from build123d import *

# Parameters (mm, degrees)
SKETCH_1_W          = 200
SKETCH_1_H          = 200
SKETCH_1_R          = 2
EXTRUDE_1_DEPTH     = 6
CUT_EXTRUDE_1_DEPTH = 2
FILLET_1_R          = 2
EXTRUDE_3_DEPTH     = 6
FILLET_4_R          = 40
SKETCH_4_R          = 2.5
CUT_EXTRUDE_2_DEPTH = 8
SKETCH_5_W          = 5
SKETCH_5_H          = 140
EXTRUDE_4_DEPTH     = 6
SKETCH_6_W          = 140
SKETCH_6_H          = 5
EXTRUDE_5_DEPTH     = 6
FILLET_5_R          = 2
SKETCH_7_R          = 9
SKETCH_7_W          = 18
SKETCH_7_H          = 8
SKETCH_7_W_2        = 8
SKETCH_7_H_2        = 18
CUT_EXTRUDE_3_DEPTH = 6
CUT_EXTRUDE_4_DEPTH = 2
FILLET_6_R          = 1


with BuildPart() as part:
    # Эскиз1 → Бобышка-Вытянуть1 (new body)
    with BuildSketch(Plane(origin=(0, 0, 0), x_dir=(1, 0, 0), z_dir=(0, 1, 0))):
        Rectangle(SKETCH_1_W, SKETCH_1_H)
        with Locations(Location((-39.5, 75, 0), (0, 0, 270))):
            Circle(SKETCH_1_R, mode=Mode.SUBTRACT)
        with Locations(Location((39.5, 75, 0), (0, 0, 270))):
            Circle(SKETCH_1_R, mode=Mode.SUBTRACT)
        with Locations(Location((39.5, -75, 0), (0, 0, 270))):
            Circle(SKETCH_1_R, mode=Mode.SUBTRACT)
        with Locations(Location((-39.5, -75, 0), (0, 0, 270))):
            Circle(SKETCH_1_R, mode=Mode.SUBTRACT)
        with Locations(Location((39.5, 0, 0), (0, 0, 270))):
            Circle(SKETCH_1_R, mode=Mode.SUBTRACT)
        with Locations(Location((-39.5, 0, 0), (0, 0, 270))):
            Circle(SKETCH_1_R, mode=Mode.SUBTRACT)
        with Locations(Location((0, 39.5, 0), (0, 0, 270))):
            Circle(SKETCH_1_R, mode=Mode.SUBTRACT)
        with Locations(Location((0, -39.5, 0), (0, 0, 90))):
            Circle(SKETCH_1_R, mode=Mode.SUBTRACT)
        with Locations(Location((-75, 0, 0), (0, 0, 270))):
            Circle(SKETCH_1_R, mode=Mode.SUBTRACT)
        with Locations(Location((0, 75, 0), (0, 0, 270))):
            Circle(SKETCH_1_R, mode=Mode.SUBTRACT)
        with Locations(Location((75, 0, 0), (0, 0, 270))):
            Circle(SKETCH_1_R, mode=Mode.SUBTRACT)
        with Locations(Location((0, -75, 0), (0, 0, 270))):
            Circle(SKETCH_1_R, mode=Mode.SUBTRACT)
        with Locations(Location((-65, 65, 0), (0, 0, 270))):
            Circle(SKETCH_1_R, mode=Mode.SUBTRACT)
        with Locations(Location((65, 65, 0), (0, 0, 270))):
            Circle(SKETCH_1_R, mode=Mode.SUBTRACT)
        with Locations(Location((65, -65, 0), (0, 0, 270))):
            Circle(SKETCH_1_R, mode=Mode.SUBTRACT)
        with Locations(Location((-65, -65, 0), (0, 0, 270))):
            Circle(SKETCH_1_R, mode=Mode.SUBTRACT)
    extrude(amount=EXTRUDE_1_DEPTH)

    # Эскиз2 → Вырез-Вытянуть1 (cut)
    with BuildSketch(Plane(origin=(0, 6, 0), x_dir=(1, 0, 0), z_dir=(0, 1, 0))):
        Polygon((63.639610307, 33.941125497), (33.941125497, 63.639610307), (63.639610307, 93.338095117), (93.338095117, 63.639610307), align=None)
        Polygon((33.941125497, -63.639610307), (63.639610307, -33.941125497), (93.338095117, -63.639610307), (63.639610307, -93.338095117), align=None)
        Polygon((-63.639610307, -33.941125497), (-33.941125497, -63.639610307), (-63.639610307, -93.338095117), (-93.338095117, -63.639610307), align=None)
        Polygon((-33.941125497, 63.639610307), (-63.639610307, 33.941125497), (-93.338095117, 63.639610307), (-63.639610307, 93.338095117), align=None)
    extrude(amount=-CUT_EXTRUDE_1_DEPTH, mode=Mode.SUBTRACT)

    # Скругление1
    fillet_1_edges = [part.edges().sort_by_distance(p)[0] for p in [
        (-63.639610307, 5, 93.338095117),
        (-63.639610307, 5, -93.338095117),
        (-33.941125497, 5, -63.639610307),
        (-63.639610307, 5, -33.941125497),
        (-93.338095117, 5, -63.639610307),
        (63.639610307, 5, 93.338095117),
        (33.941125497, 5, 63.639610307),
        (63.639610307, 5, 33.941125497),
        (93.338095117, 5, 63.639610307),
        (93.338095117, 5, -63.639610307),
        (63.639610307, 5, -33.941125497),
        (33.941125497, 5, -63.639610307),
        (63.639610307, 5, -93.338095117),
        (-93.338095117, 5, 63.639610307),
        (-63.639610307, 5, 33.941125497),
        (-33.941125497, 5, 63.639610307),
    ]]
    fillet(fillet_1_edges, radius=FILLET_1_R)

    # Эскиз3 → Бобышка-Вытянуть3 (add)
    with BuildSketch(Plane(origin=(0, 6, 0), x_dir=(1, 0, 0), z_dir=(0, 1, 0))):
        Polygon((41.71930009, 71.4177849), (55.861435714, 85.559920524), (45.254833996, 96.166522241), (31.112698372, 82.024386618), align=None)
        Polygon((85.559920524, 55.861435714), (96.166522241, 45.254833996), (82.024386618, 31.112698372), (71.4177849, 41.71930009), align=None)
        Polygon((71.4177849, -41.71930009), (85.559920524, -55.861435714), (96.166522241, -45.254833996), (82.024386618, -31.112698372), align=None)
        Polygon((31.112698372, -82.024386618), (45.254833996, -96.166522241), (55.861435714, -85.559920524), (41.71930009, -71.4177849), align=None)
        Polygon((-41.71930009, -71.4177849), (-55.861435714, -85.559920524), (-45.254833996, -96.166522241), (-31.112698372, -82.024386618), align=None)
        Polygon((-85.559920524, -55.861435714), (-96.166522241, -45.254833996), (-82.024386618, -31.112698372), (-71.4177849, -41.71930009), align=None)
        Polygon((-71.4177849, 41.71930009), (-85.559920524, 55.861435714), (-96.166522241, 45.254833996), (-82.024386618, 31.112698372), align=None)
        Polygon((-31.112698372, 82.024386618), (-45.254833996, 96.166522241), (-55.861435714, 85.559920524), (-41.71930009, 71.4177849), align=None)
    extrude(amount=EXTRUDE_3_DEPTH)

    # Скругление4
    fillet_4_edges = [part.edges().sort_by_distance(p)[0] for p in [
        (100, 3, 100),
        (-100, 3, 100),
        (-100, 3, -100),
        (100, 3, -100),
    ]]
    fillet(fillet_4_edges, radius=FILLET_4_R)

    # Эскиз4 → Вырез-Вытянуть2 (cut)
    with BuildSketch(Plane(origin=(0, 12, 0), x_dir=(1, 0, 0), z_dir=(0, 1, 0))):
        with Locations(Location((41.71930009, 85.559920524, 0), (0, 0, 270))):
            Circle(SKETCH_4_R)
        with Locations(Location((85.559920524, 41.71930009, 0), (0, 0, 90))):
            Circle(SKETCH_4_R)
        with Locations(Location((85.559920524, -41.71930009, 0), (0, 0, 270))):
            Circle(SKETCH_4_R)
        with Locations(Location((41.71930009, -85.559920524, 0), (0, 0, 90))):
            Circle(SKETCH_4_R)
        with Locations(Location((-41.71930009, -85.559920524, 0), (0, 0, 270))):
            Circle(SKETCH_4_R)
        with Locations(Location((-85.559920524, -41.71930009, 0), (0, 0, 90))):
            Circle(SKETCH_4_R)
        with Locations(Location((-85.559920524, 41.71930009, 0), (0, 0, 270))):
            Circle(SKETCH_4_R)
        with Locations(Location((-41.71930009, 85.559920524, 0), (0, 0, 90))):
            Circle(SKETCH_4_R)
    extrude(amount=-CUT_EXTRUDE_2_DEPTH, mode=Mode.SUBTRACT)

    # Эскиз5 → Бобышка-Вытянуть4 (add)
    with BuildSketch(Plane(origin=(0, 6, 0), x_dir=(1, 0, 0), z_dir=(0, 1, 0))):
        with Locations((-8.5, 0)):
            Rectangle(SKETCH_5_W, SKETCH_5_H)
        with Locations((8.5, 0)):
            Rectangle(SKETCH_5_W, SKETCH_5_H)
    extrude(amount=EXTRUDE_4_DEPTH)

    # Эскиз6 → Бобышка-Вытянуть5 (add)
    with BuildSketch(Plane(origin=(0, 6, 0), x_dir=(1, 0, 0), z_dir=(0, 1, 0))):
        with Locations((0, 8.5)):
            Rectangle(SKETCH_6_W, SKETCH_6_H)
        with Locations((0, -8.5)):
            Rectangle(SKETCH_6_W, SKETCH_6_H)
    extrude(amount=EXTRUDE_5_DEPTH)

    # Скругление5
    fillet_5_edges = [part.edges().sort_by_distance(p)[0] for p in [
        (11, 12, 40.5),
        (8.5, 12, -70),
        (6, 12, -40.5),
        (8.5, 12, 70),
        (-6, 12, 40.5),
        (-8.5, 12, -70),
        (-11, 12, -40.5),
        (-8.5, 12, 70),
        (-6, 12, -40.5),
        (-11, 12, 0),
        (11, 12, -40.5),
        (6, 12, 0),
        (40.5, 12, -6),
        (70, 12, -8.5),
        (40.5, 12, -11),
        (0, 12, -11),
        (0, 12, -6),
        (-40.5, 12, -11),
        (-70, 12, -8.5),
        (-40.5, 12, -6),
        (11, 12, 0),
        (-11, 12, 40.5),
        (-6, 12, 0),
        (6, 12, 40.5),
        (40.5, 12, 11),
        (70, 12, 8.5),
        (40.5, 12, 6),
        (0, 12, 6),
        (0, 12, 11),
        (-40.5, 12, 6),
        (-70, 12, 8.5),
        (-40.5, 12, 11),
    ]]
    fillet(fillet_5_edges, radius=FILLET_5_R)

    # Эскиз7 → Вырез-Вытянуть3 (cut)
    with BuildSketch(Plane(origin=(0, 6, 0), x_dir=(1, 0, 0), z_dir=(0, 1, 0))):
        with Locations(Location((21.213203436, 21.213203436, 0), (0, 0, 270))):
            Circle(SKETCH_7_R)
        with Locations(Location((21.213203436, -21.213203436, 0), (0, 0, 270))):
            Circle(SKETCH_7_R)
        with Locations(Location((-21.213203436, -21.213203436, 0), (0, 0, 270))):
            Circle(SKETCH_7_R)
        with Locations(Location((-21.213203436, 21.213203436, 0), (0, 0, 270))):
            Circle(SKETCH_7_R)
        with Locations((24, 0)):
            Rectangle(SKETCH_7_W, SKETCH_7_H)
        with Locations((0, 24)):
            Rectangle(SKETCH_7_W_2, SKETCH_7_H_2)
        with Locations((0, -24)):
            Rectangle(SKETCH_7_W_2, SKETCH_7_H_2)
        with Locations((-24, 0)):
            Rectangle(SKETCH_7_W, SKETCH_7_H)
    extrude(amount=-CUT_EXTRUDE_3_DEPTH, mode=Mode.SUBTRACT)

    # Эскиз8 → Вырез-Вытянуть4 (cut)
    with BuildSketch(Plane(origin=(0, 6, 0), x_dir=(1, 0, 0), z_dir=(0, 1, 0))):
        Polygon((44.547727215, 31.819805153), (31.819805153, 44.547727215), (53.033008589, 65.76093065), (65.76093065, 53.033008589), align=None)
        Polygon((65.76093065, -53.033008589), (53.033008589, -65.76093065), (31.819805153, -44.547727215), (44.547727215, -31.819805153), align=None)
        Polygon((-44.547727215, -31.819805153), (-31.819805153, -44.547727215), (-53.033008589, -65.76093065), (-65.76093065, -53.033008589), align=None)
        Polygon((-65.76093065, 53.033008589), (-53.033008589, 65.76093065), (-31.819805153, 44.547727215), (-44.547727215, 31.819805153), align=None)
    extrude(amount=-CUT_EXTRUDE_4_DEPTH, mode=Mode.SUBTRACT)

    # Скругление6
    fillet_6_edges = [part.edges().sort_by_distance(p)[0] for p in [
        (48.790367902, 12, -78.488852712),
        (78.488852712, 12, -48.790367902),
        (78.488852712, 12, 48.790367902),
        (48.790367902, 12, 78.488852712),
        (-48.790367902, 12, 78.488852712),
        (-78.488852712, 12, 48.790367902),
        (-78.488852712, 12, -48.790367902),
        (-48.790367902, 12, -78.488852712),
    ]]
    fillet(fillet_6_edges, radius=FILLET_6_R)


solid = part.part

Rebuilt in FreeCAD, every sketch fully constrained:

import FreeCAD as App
import Part
import Sketcher

V = App.Vector


def edges_at(feature, points):
    """Names of the edges that pass closest to the given points."""
    edges = feature.Shape.Edges
    near = lambda p: min(range(len(edges)), key=lambda i: edges[i].distToShape(Part.Vertex(*p))[0])
    return sorted({f"Edge{near(p) + 1}" for p in points})

doc = App.newDocument("Part")
body = doc.addObject("PartDesign::Body", "Body")

# Sketch on XZ plane
sketch1 = doc.addObject("Sketcher::SketchObject", "Sketch")
body.addObject(sketch1)
sketch1.AttachmentSupport = (doc.XZ_Plane, [""])
sketch1.MapMode = "FlatFace"
sketch1.addGeometry([
    Part.LineSegment(V(-100, -100, 0), V(-100, 100, 0)),  # 0
    Part.LineSegment(V(-100, 100, 0), V(100, 100, 0)),  # 1
    Part.LineSegment(V(100, 100, 0), V(100, -100, 0)),  # 2
    Part.LineSegment(V(100, -100, 0), V(-100, -100, 0)),  # 3
    Part.Circle(V(-65, 65, 0), V(0, 0, 1), 2),  # 4
    Part.Circle(V(-39.5, 75, 0), V(0, 0, 1), 2),  # 5
    Part.Circle(V(0, 75, 0), V(0, 0, 1), 2),  # 6
    Part.Circle(V(0, 39.5, 0), V(0, 0, 1), 2),  # 7
    Part.Circle(V(39.5, 75, 0), V(0, 0, 1), 2),  # 8
    Part.Circle(V(65, 65, 0), V(0, 0, 1), 2),  # 9
    Part.Circle(V(-75, 0, 0), V(0, 0, 1), 2),  # 10
    Part.Circle(V(-39.5, 0, 0), V(0, 0, 1), 2),  # 11
    Part.Circle(V(-65, -65, 0), V(0, 0, 1), 2),  # 12
    Part.Circle(V(-39.5, -75, 0), V(0, 0, 1), 2),  # 13
    Part.Circle(V(39.5, 0, 0), V(0, 0, 1), 2),  # 14
    Part.Circle(V(75, 0, 0), V(0, 0, 1), 2),  # 15
    Part.Circle(V(0, -39.5, 0), V(0, 0, 1), 2),  # 16
    Part.Circle(V(0, -75, 0), V(0, 0, 1), 2),  # 17
    Part.Circle(V(39.5, -75, 0), V(0, 0, 1), 2),  # 18
    Part.Circle(V(65, -65, 0), V(0, 0, 1), 2),  # 19
], False)
sketch1.addConstraint([
    Sketcher.Constraint("Coincident", 0, 2, 1, 1),
    Sketcher.Constraint("Coincident", 1, 2, 2, 1),
    Sketcher.Constraint("Coincident", 2, 2, 3, 1),
    Sketcher.Constraint("Coincident", 3, 2, 0, 1),
    Sketcher.Constraint("Vertical", 0),
    Sketcher.Constraint("Horizontal", 1),
    Sketcher.Constraint("Vertical", 2),
    Sketcher.Constraint("Horizontal", 3),
    Sketcher.Constraint("Equal", 4, 5),
    Sketcher.Constraint("Equal", 5, 6),
    Sketcher.Constraint("Equal", 6, 7),
    Sketcher.Constraint("Equal", 7, 8),
    Sketcher.Constraint("Equal", 8, 9),
    Sketcher.Constraint("Equal", 9, 10),
    Sketcher.Constraint("Equal", 10, 11),
    Sketcher.Constraint("Equal", 11, 12),
    Sketcher.Constraint("Equal", 12, 13),
    Sketcher.Constraint("Equal", 13, 14),
    Sketcher.Constraint("Equal", 14, 15),
    Sketcher.Constraint("Equal", 15, 16),
    Sketcher.Constraint("Equal", 16, 17),
    Sketcher.Constraint("Equal", 17, 18),
    Sketcher.Constraint("Equal", 18, 19),
    Sketcher.Constraint("Symmetric", 9, 3, 12, 3, -1, 1),
    Sketcher.Constraint("Symmetric", 8, 3, 13, 3, -1, 1),
    Sketcher.Constraint("Symmetric", 11, 3, 14, 3, -1, 1),
    Sketcher.Constraint("Symmetric", 10, 3, 15, 3, -1, 1),
    Sketcher.Constraint("Symmetric", 7, 3, 16, 3, -1, 1),
    Sketcher.Constraint("Symmetric", 6, 3, 17, 3, -1, 1),
    Sketcher.Constraint("Symmetric", 5, 3, 18, 3, -1, 1),
    Sketcher.Constraint("Symmetric", 4, 3, 19, 3, -1, 1),
    Sketcher.Constraint("Symmetric", 0, 2, 2, 2, -1, 1),
    Sketcher.Constraint("Symmetric", 5, 3, 8, 3, -2),
    Sketcher.Constraint("Symmetric", 4, 3, 9, 3, -2),
    Sketcher.Constraint("PointOnObject", 6, 3, -2),
    Sketcher.Constraint("PointOnObject", 7, 3, -2),
    Sketcher.Constraint("PointOnObject", 10, 3, -1),
    Sketcher.Constraint("PointOnObject", 11, 3, -1),
    Sketcher.Constraint("Horizontal", 5, 3, 6, 3),
    Sketcher.Constraint("Vertical", 5, 3, 11, 3),
    Sketcher.Constraint("Equal", 3, 0),
    Sketcher.Constraint("Diameter", 4, 4.0),
    Sketcher.Constraint("DistanceX", 1, 1, 1, 2, 200.0),
    Sketcher.Constraint("DistanceX", 4, 3, -1, 1, 65.0),
    Sketcher.Constraint("DistanceY", -1, 1, 4, 3, 65.0),
    Sketcher.Constraint("DistanceY", -1, 1, 5, 3, 75.0),
    Sketcher.Constraint("DistanceX", 10, 3, -1, 1, 75.0),
    Sketcher.Constraint("DistanceX", 5, 3, 8, 3, 79.0),
    Sketcher.Constraint("DistanceY", 16, 3, 7, 3, 79.0),
])
pad1 = doc.addObject("PartDesign::Pad", "Pad")
body.addObject(pad1)
pad1.Profile = sketch1
pad1.Length = 6
pad1.Reversed = True

# Sketch on XZ plane
sketch2 = doc.addObject("Sketcher::SketchObject", "Sketch001")
body.addObject(sketch2)
sketch2.AttachmentSupport = (doc.XZ_Plane, [""])
sketch2.MapMode = "FlatFace"
sketch2.AttachmentOffset = App.Placement(V(0, 0, -6), App.Rotation())
sketch2.addGeometry([
    Part.LineSegment(V(34, -64, 0), V(64, -34, 0)),  # 0
    Part.LineSegment(V(64, -34, 0), V(93, -64, 0)),  # 1
    Part.LineSegment(V(93, -64, 0), V(64, -93, 0)),  # 2
    Part.LineSegment(V(64, -93, 0), V(34, -64, 0)),  # 3
    Part.LineSegment(V(64, 34, 0), V(34, 64, 0)),  # 4
    Part.LineSegment(V(34, 64, 0), V(64, 93, 0)),  # 5
    Part.LineSegment(V(64, 93, 0), V(93, 64, 0)),  # 6
    Part.LineSegment(V(93, 64, 0), V(64, 34, 0)),  # 7
    Part.LineSegment(V(-34, 64, 0), V(-64, 34, 0)),  # 8
    Part.LineSegment(V(-64, 34, 0), V(-93, 64, 0)),  # 9
    Part.LineSegment(V(-93, 64, 0), V(-64, 93, 0)),  # 10
    Part.LineSegment(V(-64, 93, 0), V(-34, 64, 0)),  # 11
    Part.LineSegment(V(-64, -34, 0), V(-34, -64, 0)),  # 12
    Part.LineSegment(V(-34, -64, 0), V(-64, -93, 0)),  # 13
    Part.LineSegment(V(-64, -93, 0), V(-93, -64, 0)),  # 14
    Part.LineSegment(V(-93, -64, 0), V(-64, -34, 0)),  # 15
], False)
sketch2.addConstraint([
    Sketcher.Constraint("Coincident", 0, 2, 1, 1),
    Sketcher.Constraint("Coincident", 1, 2, 2, 1),
    Sketcher.Constraint("Coincident", 2, 2, 3, 1),
    Sketcher.Constraint("Coincident", 3, 2, 0, 1),
    Sketcher.Constraint("Coincident", 4, 2, 5, 1),
    Sketcher.Constraint("Coincident", 5, 2, 6, 1),
    Sketcher.Constraint("Coincident", 6, 2, 7, 1),
    Sketcher.Constraint("Coincident", 7, 2, 4, 1),
    Sketcher.Constraint("Coincident", 8, 2, 9, 1),
    Sketcher.Constraint("Coincident", 9, 2, 10, 1),
    Sketcher.Constraint("Coincident", 10, 2, 11, 1),
    Sketcher.Constraint("Coincident", 11, 2, 8, 1),
    Sketcher.Constraint("Coincident", 12, 2, 13, 1),
    Sketcher.Constraint("Coincident", 13, 2, 14, 1),
    Sketcher.Constraint("Coincident", 14, 2, 15, 1),
    Sketcher.Constraint("Coincident", 15, 2, 12, 1),
    Sketcher.Constraint("Symmetric", 0, 2, 8, 2, -1, 1),
    Sketcher.Constraint("Symmetric", 1, 2, 9, 2, -1, 1),
    Sketcher.Constraint("Symmetric", 2, 2, 10, 2, -1, 1),
    Sketcher.Constraint("Symmetric", 3, 2, 11, 2, -1, 1),
    Sketcher.Constraint("Symmetric", 4, 2, 12, 2, -1, 1),
    Sketcher.Constraint("Symmetric", 5, 2, 13, 2, -1, 1),
    Sketcher.Constraint("Symmetric", 6, 2, 14, 2, -1, 1),
    Sketcher.Constraint("Symmetric", 7, 2, 15, 2, -1, 1),
    Sketcher.Constraint("Symmetric", 7, 2, 8, 2, -2),
    Sketcher.Constraint("Symmetric", 6, 2, 9, 2, -2),
    Sketcher.Constraint("Symmetric", 5, 2, 10, 2, -2),
    Sketcher.Constraint("Symmetric", 4, 2, 11, 2, -2),
    Sketcher.Constraint("Perpendicular", 0, 1),
    Sketcher.Constraint("Perpendicular", 1, 2),
    Sketcher.Constraint("Perpendicular", 2, 3),
    Sketcher.Constraint("Parallel", 3, 4),
    Sketcher.Constraint("Horizontal", 1, 2, 3, 2),
    Sketcher.Constraint("Distance", 0, 42.0),
    Sketcher.Constraint("DistanceX", -1, 1, 0, 2, 63.63961),
    Sketcher.Constraint("DistanceY", 1, 2, -1, 1, 63.63961),
])
pocket1 = doc.addObject("PartDesign::Pocket", "Pocket")
body.addObject(pocket1)
pocket1.Profile = sketch2
pocket1.Length = 2
pocket1.Reversed = True
doc.recompute()

fillet = doc.addObject("PartDesign::Fillet", "Fillet")
body.addObject(fillet)
fillet.Base = (pocket1, edges_at(pocket1, [
    (-63.64, 5, 93.338),
    (-63.64, 5, -93.338),
    (-33.941, 5, -63.64),
    (-63.64, 5, -33.941),
    (-93.338, 5, -63.64),
    (63.64, 5, 93.338),
    (33.941, 5, 63.64),
    (63.64, 5, 33.941),
    (93.338, 5, 63.64),
    (93.338, 5, -63.64),
    (63.64, 5, -33.941),
    (33.941, 5, -63.64),
    (63.64, 5, -93.338),
    (-93.338, 5, 63.64),
    (-63.64, 5, 33.941),
    (-33.941, 5, 63.64),
]))
fillet.Radius = 2

# Sketch on XZ plane
sketch3 = doc.addObject("Sketcher::SketchObject", "Sketch002")
body.addObject(sketch3)
sketch3.AttachmentSupport = (doc.XZ_Plane, [""])
sketch3.MapMode = "FlatFace"
sketch3.AttachmentOffset = App.Placement(V(0, 0, -6), App.Rotation())
sketch3.addGeometry([
    Part.LineSegment(V(42, -71, 0), V(56, -86, 0)),  # 0
    Part.LineSegment(V(56, -86, 0), V(45, -96, 0)),  # 1
    Part.LineSegment(V(45, -96, 0), V(31, -82, 0)),  # 2
    Part.LineSegment(V(31, -82, 0), V(42, -71, 0)),  # 3
    Part.LineSegment(V(96, -45, 0), V(86, -56, 0)),  # 4
    Part.LineSegment(V(86, -56, 0), V(71, -42, 0)),  # 5
    Part.LineSegment(V(71, -42, 0), V(82, -31, 0)),  # 6
    Part.LineSegment(V(82, -31, 0), V(96, -45, 0)),  # 7
    Part.LineSegment(V(71, 42, 0), V(86, 56, 0)),  # 8
    Part.LineSegment(V(86, 56, 0), V(96, 45, 0)),  # 9
    Part.LineSegment(V(96, 45, 0), V(82, 31, 0)),  # 10
    Part.LineSegment(V(82, 31, 0), V(71, 42, 0)),  # 11
    Part.LineSegment(V(31, 82, 0), V(45, 96, 0)),  # 12
    Part.LineSegment(V(45, 96, 0), V(56, 86, 0)),  # 13
    Part.LineSegment(V(56, 86, 0), V(42, 71, 0)),  # 14
    Part.LineSegment(V(42, 71, 0), V(31, 82, 0)),  # 15
    Part.LineSegment(V(-42, 71, 0), V(-56, 86, 0)),  # 16
    Part.LineSegment(V(-56, 86, 0), V(-45, 96, 0)),  # 17
    Part.LineSegment(V(-45, 96, 0), V(-31, 82, 0)),  # 18
    Part.LineSegment(V(-31, 82, 0), V(-42, 71, 0)),  # 19
    Part.LineSegment(V(-96, 45, 0), V(-86, 56, 0)),  # 20
    Part.LineSegment(V(-86, 56, 0), V(-71, 42, 0)),  # 21
    Part.LineSegment(V(-71, 42, 0), V(-82, 31, 0)),  # 22
    Part.LineSegment(V(-82, 31, 0), V(-96, 45, 0)),  # 23
    Part.LineSegment(V(-71, -42, 0), V(-86, -56, 0)),  # 24
    Part.LineSegment(V(-86, -56, 0), V(-96, -45, 0)),  # 25
    Part.LineSegment(V(-96, -45, 0), V(-82, -31, 0)),  # 26
    Part.LineSegment(V(-82, -31, 0), V(-71, -42, 0)),  # 27
    Part.LineSegment(V(-31, -82, 0), V(-45, -96, 0)),  # 28
    Part.LineSegment(V(-45, -96, 0), V(-56, -86, 0)),  # 29
    Part.LineSegment(V(-56, -86, 0), V(-42, -71, 0)),  # 30
    Part.LineSegment(V(-42, -71, 0), V(-31, -82, 0)),  # 31
], False)
sketch3.addConstraint([
    Sketcher.Constraint("Coincident", 0, 2, 1, 1),
    Sketcher.Constraint("Coincident", 1, 2, 2, 1),
    Sketcher.Constraint("Coincident", 2, 2, 3, 1),
    Sketcher.Constraint("Coincident", 3, 2, 0, 1),
    Sketcher.Constraint("Coincident", 4, 2, 5, 1),
    Sketcher.Constraint("Coincident", 5, 2, 6, 1),
    Sketcher.Constraint("Coincident", 6, 2, 7, 1),
    Sketcher.Constraint("Coincident", 7, 2, 4, 1),
    Sketcher.Constraint("Coincident", 8, 2, 9, 1),
    Sketcher.Constraint("Coincident", 9, 2, 10, 1),
    Sketcher.Constraint("Coincident", 10, 2, 11, 1),
    Sketcher.Constraint("Coincident", 11, 2, 8, 1),
    Sketcher.Constraint("Coincident", 12, 2, 13, 1),
    Sketcher.Constraint("Coincident", 13, 2, 14, 1),
    Sketcher.Constraint("Coincident", 14, 2, 15, 1),
    Sketcher.Constraint("Coincident", 15, 2, 12, 1),
    Sketcher.Constraint("Coincident", 16, 2, 17, 1),
    Sketcher.Constraint("Coincident", 17, 2, 18, 1),
    Sketcher.Constraint("Coincident", 18, 2, 19, 1),
    Sketcher.Constraint("Coincident", 19, 2, 16, 1),
    Sketcher.Constraint("Coincident", 20, 2, 21, 1),
    Sketcher.Constraint("Coincident", 21, 2, 22, 1),
    Sketcher.Constraint("Coincident", 22, 2, 23, 1),
    Sketcher.Constraint("Coincident", 23, 2, 20, 1),
    Sketcher.Constraint("Coincident", 24, 2, 25, 1),
    Sketcher.Constraint("Coincident", 25, 2, 26, 1),
    Sketcher.Constraint("Coincident", 26, 2, 27, 1),
    Sketcher.Constraint("Coincident", 27, 2, 24, 1),
    Sketcher.Constraint("Coincident", 28, 2, 29, 1),
    Sketcher.Constraint("Coincident", 29, 2, 30, 1),
    Sketcher.Constraint("Coincident", 30, 2, 31, 1),
    Sketcher.Constraint("Coincident", 31, 2, 28, 1),
    Sketcher.Constraint("Symmetric", 0, 2, 16, 2, -1, 1),
    Sketcher.Constraint("Symmetric", 1, 2, 17, 2, -1, 1),
    Sketcher.Constraint("Symmetric", 2, 2, 18, 2, -1, 1),
    Sketcher.Constraint("Symmetric", 3, 2, 19, 2, -1, 1),
    Sketcher.Constraint("Symmetric", 4, 2, 20, 2, -1, 1),
    Sketcher.Constraint("Symmetric", 5, 2, 21, 2, -1, 1),
    Sketcher.Constraint("Symmetric", 6, 2, 22, 2, -1, 1),
    Sketcher.Constraint("Symmetric", 7, 2, 23, 2, -1, 1),
    Sketcher.Constraint("Symmetric", 8, 2, 24, 2, -1, 1),
    Sketcher.Constraint("Symmetric", 9, 2, 25, 2, -1, 1),
    Sketcher.Constraint("Symmetric", 10, 2, 26, 2, -1, 1),
    Sketcher.Constraint("Symmetric", 11, 2, 27, 2, -1, 1),
    Sketcher.Constraint("Symmetric", 12, 2, 28, 2, -1, 1),
    Sketcher.Constraint("Symmetric", 13, 2, 29, 2, -1, 1),
    Sketcher.Constraint("Symmetric", 14, 2, 30, 2, -1, 1),
    Sketcher.Constraint("Symmetric", 15, 2, 31, 2, -1, 1),
    Sketcher.Constraint("Symmetric", 13, 2, 16, 2, -2),
    Sketcher.Constraint("Symmetric", 12, 2, 17, 2, -2),
    Sketcher.Constraint("Symmetric", 15, 2, 18, 2, -2),
    Sketcher.Constraint("Symmetric", 14, 2, 19, 2, -2),
    Sketcher.Constraint("Symmetric", 8, 2, 20, 2, -2),
    Sketcher.Constraint("Symmetric", 11, 2, 21, 2, -2),
    Sketcher.Constraint("Symmetric", 10, 2, 22, 2, -2),
    Sketcher.Constraint("Symmetric", 9, 2, 23, 2, -2),
    Sketcher.Constraint("Perpendicular", 0, 1),
    Sketcher.Constraint("Perpendicular", 1, 2),
    Sketcher.Constraint("Perpendicular", 2, 3),
    Sketcher.Constraint("Parallel", 3, 4),
    Sketcher.Constraint("Perpendicular", 4, 5),
    Sketcher.Constraint("Perpendicular", 5, 6),
    Sketcher.Constraint("Perpendicular", 6, 7),
    Sketcher.Constraint("Perpendicular", 7, 8),
    Sketcher.Constraint("Equal", 3, 4),
    Sketcher.Constraint("Equal", 2, 5),
    Sketcher.Constraint("Distance", 0, 20.0),
    Sketcher.Constraint("Distance", 1, 15.0),
    Sketcher.Constraint("DistanceY", 5, 2, 10, 2, 72.831998),
    Sketcher.Constraint("DistanceX", 18, 2, 14, 2, 72.831998),
    Sketcher.Constraint("DistanceY", 0, 2, -1, 1, 85.559921),
    Sketcher.Constraint("DistanceX", -1, 1, 4, 2, 85.559921),
])
pad2 = doc.addObject("PartDesign::Pad", "Pad001")
body.addObject(pad2)
pad2.Profile = sketch3
pad2.Length = 6
pad2.Reversed = True
doc.recompute()

fillet2 = doc.addObject("PartDesign::Fillet", "Fillet001")
body.addObject(fillet2)
fillet2.Base = (pad2, edges_at(pad2, [
    (100, 3, 100),
    (-100, 3, 100),
    (-100, 3, -100),
    (100, 3, -100),
]))
fillet2.Radius = 40

# Sketch on XZ plane
sketch4 = doc.addObject("Sketcher::SketchObject", "Sketch003")
body.addObject(sketch4)
sketch4.AttachmentSupport = (doc.XZ_Plane, [""])
sketch4.MapMode = "FlatFace"
sketch4.AttachmentOffset = App.Placement(V(0, 0, -12), App.Rotation())
sketch4.addGeometry([
    Part.Circle(V(41.7, -85.6, 0), V(0, 0, 1), 2.5),  # 0
    Part.Circle(V(85.6, -41.7, 0), V(0, 0, 1), 2.5),  # 1
    Part.Circle(V(85.6, 41.7, 0), V(0, 0, 1), 2.5),  # 2
    Part.Circle(V(41.7, 85.6, 0), V(0, 0, 1), 2.5),  # 3
    Part.Circle(V(-41.7, 85.6, 0), V(0, 0, 1), 2.5),  # 4
    Part.Circle(V(-85.6, 41.7, 0), V(0, 0, 1), 2.5),  # 5
    Part.Circle(V(-85.6, -41.7, 0), V(0, 0, 1), 2.5),  # 6
    Part.Circle(V(-41.7, -85.6, 0), V(0, 0, 1), 2.5),  # 7
], False)
sketch4.addConstraint([
    Sketcher.Constraint("Equal", 0, 1),
    Sketcher.Constraint("Equal", 1, 2),
    Sketcher.Constraint("Equal", 2, 3),
    Sketcher.Constraint("Equal", 3, 4),
    Sketcher.Constraint("Equal", 4, 5),
    Sketcher.Constraint("Equal", 5, 6),
    Sketcher.Constraint("Equal", 6, 7),
    Sketcher.Constraint("Symmetric", 0, 3, 4, 3, -1, 1),
    Sketcher.Constraint("Symmetric", 1, 3, 5, 3, -1, 1),
    Sketcher.Constraint("Symmetric", 2, 3, 6, 3, -1, 1),
    Sketcher.Constraint("Symmetric", 3, 3, 7, 3, -1, 1),
    Sketcher.Constraint("Symmetric", 3, 3, 4, 3, -2),
    Sketcher.Constraint("Symmetric", 2, 3, 5, 3, -2),
    Sketcher.Constraint("Diameter", 0, 5.0),
    Sketcher.Constraint("DistanceX", -1, 1, 0, 3, 41.7193),
    Sketcher.Constraint("DistanceY", 1, 3, -1, 1, 41.7193),
    Sketcher.Constraint("DistanceY", 0, 3, -1, 1, 85.559921),
    Sketcher.Constraint("DistanceX", -1, 1, 1, 3, 85.559921),
])
pocket2 = doc.addObject("PartDesign::Pocket", "Pocket001")
body.addObject(pocket2)
pocket2.Profile = sketch4
pocket2.Length = 8
pocket2.Reversed = True

# Sketch on XZ plane
sketch5 = doc.addObject("Sketcher::SketchObject", "Sketch004")
body.addObject(sketch5)
sketch5.AttachmentSupport = (doc.XZ_Plane, [""])
sketch5.MapMode = "FlatFace"
sketch5.AttachmentOffset = App.Placement(V(0, 0, -6), App.Rotation())
sketch5.addGeometry([
    Part.LineSegment(V(-11, -70, 0), V(-11, 70, 0)),  # 0
    Part.LineSegment(V(-11, 70, 0), V(-6, 70, 0)),  # 1
    Part.LineSegment(V(-6, 70, 0), V(-6, -70, 0)),  # 2
    Part.LineSegment(V(-6, -70, 0), V(-11, -70, 0)),  # 3
    Part.LineSegment(V(6, -70, 0), V(6, 70, 0)),  # 4
    Part.LineSegment(V(6, 70, 0), V(11, 70, 0)),  # 5
    Part.LineSegment(V(11, 70, 0), V(11, -70, 0)),  # 6
    Part.LineSegment(V(11, -70, 0), V(6, -70, 0)),  # 7
], False)
sketch5.addConstraint([
    Sketcher.Constraint("Coincident", 0, 2, 1, 1),
    Sketcher.Constraint("Coincident", 1, 2, 2, 1),
    Sketcher.Constraint("Coincident", 2, 2, 3, 1),
    Sketcher.Constraint("Coincident", 3, 2, 0, 1),
    Sketcher.Constraint("Coincident", 4, 2, 5, 1),
    Sketcher.Constraint("Coincident", 5, 2, 6, 1),
    Sketcher.Constraint("Coincident", 6, 2, 7, 1),
    Sketcher.Constraint("Coincident", 7, 2, 4, 1),
    Sketcher.Constraint("Vertical", 0),
    Sketcher.Constraint("Horizontal", 1),
    Sketcher.Constraint("Vertical", 2),
    Sketcher.Constraint("Horizontal", 3),
    Sketcher.Constraint("Vertical", 4),
    Sketcher.Constraint("Horizontal", 5),
    Sketcher.Constraint("Vertical", 6),
    Sketcher.Constraint("Horizontal", 7),
    Sketcher.Constraint("Symmetric", 2, 2, 4, 2, -1, 1),
    Sketcher.Constraint("Symmetric", 0, 2, 6, 2, -1, 1),
    Sketcher.Constraint("Horizontal", 1, 2, 4, 2),
    Sketcher.Constraint("DistanceX", 1, 1, 1, 2, 5.0),
    Sketcher.Constraint("DistanceY", 0, 1, 0, 2, 140.0),
    Sketcher.Constraint("DistanceX", 0, 2, -1, 1, 11.0),
])
pad3 = doc.addObject("PartDesign::Pad", "Pad002")
body.addObject(pad3)
pad3.Profile = sketch5
pad3.Length = 6
pad3.Reversed = True

# Sketch on XZ plane
sketch6 = doc.addObject("Sketcher::SketchObject", "Sketch005")
body.addObject(sketch6)
sketch6.AttachmentSupport = (doc.XZ_Plane, [""])
sketch6.MapMode = "FlatFace"
sketch6.AttachmentOffset = App.Placement(V(0, 0, -6), App.Rotation())
sketch6.addGeometry([
    Part.LineSegment(V(-70, -11, 0), V(-70, -6, 0)),  # 0
    Part.LineSegment(V(-70, -6, 0), V(70, -6, 0)),  # 1
    Part.LineSegment(V(70, -6, 0), V(70, -11, 0)),  # 2
    Part.LineSegment(V(70, -11, 0), V(-70, -11, 0)),  # 3
    Part.LineSegment(V(-70, 6, 0), V(-70, 11, 0)),  # 4
    Part.LineSegment(V(-70, 11, 0), V(70, 11, 0)),  # 5
    Part.LineSegment(V(70, 11, 0), V(70, 6, 0)),  # 6
    Part.LineSegment(V(70, 6, 0), V(-70, 6, 0)),  # 7
], False)
sketch6.addConstraint([
    Sketcher.Constraint("Coincident", 0, 2, 1, 1),
    Sketcher.Constraint("Coincident", 1, 2, 2, 1),
    Sketcher.Constraint("Coincident", 2, 2, 3, 1),
    Sketcher.Constraint("Coincident", 3, 2, 0, 1),
    Sketcher.Constraint("Coincident", 4, 2, 5, 1),
    Sketcher.Constraint("Coincident", 5, 2, 6, 1),
    Sketcher.Constraint("Coincident", 6, 2, 7, 1),
    Sketcher.Constraint("Coincident", 7, 2, 4, 1),
    Sketcher.Constraint("Vertical", 0),
    Sketcher.Constraint("Horizontal", 1),
    Sketcher.Constraint("Vertical", 2),
    Sketcher.Constraint("Horizontal", 3),
    Sketcher.Constraint("Vertical", 4),
    Sketcher.Constraint("Horizontal", 5),
    Sketcher.Constraint("Vertical", 6),
    Sketcher.Constraint("Horizontal", 7),
    Sketcher.Constraint("Symmetric", 2, 2, 4, 2, -1, 1),
    Sketcher.Constraint("Symmetric", 0, 2, 6, 2, -1, 1),
    Sketcher.Constraint("Vertical", 3, 2, 4, 2),
    Sketcher.Constraint("DistanceX", 1, 1, 1, 2, 140.0),
    Sketcher.Constraint("DistanceY", 0, 1, 0, 2, 5.0),
    Sketcher.Constraint("DistanceY", 0, 2, -1, 1, 6.0),
])
pad4 = doc.addObject("PartDesign::Pad", "Pad003")
body.addObject(pad4)
pad4.Profile = sketch6
pad4.Length = 6
pad4.Reversed = True
doc.recompute()

fillet3 = doc.addObject("PartDesign::Fillet", "Fillet002")
body.addObject(fillet3)
fillet3.Base = (pad4, edges_at(pad4, [
    (11, 12, 40.5),
    (8.5, 12, -70),
    (6, 12, -40.5),
    (8.5, 12, 70),
    (-6, 12, 40.5),
    (-8.5, 12, -70),
    (-11, 12, -40.5),
    (-8.5, 12, 70),
    (-6, 12, -40.5),
    (-11, 12, 0),
    (11, 12, -40.5),
    (6, 12, 0),
    (40.5, 12, -6),
    (70, 12, -8.5),
    (40.5, 12, -11),
    (0, 12, -11),
    (0, 12, -6),
    (-40.5, 12, -11),
    (-70, 12, -8.5),
    (-40.5, 12, -6),
    (11, 12, 0),
    (-11, 12, 40.5),
    (-6, 12, 0),
    (6, 12, 40.5),
    (40.5, 12, 11),
    (70, 12, 8.5),
    (40.5, 12, 6),
    (0, 12, 6),
    (0, 12, 11),
    (-40.5, 12, 6),
    (-70, 12, 8.5),
    (-40.5, 12, 11),
]))
fillet3.Radius = 2

# Sketch on XZ plane
sketch7 = doc.addObject("Sketcher::SketchObject", "Sketch006")
body.addObject(sketch7)
sketch7.AttachmentSupport = (doc.XZ_Plane, [""])
sketch7.MapMode = "FlatFace"
sketch7.AttachmentOffset = App.Placement(V(0, 0, -6), App.Rotation())
sketch7.addGeometry([
    Part.Circle(V(21, -21, 0), V(0, 0, 1), 9),  # 0
    Part.Circle(V(21, 21, 0), V(0, 0, 1), 9),  # 1
    Part.Circle(V(-21, 21, 0), V(0, 0, 1), 9),  # 2
    Part.Circle(V(-21, -21, 0), V(0, 0, 1), 9),  # 3
    Part.LineSegment(V(15, -4, 0), V(15, 4, 0)),  # 4
    Part.LineSegment(V(15, 4, 0), V(33, 4, 0)),  # 5
    Part.LineSegment(V(33, 4, 0), V(33, -4, 0)),  # 6
    Part.LineSegment(V(33, -4, 0), V(15, -4, 0)),  # 7
    Part.LineSegment(V(-4, -33, 0), V(-4, -15, 0)),  # 8
    Part.LineSegment(V(-4, -15, 0), V(4, -15, 0)),  # 9
    Part.LineSegment(V(4, -15, 0), V(4, -33, 0)),  # 10
    Part.LineSegment(V(4, -33, 0), V(-4, -33, 0)),  # 11
    Part.LineSegment(V(-4, 15, 0), V(-4, 33, 0)),  # 12
    Part.LineSegment(V(-4, 33, 0), V(4, 33, 0)),  # 13
    Part.LineSegment(V(4, 33, 0), V(4, 15, 0)),  # 14
    Part.LineSegment(V(4, 15, 0), V(-4, 15, 0)),  # 15
    Part.LineSegment(V(-33, -4, 0), V(-33, 4, 0)),  # 16
    Part.LineSegment(V(-33, 4, 0), V(-15, 4, 0)),  # 17
    Part.LineSegment(V(-15, 4, 0), V(-15, -4, 0)),  # 18
    Part.LineSegment(V(-15, -4, 0), V(-33, -4, 0)),  # 19
], False)
sketch7.addConstraint([
    Sketcher.Constraint("Coincident", 4, 2, 5, 1),
    Sketcher.Constraint("Coincident", 5, 2, 6, 1),
    Sketcher.Constraint("Coincident", 6, 2, 7, 1),
    Sketcher.Constraint("Coincident", 7, 2, 4, 1),
    Sketcher.Constraint("Coincident", 8, 2, 9, 1),
    Sketcher.Constraint("Coincident", 9, 2, 10, 1),
    Sketcher.Constraint("Coincident", 10, 2, 11, 1),
    Sketcher.Constraint("Coincident", 11, 2, 8, 1),
    Sketcher.Constraint("Coincident", 12, 2, 13, 1),
    Sketcher.Constraint("Coincident", 13, 2, 14, 1),
    Sketcher.Constraint("Coincident", 14, 2, 15, 1),
    Sketcher.Constraint("Coincident", 15, 2, 12, 1),
    Sketcher.Constraint("Coincident", 16, 2, 17, 1),
    Sketcher.Constraint("Coincident", 17, 2, 18, 1),
    Sketcher.Constraint("Coincident", 18, 2, 19, 1),
    Sketcher.Constraint("Coincident", 19, 2, 16, 1),
    Sketcher.Constraint("Vertical", 4),
    Sketcher.Constraint("Horizontal", 5),
    Sketcher.Constraint("Vertical", 6),
    Sketcher.Constraint("Horizontal", 7),
    Sketcher.Constraint("Vertical", 8),
    Sketcher.Constraint("Horizontal", 9),
    Sketcher.Constraint("Vertical", 10),
    Sketcher.Constraint("Horizontal", 11),
    Sketcher.Constraint("Vertical", 12),
    Sketcher.Constraint("Horizontal", 13),
    Sketcher.Constraint("Vertical", 14),
    Sketcher.Constraint("Horizontal", 15),
    Sketcher.Constraint("Vertical", 16),
    Sketcher.Constraint("Horizontal", 17),
    Sketcher.Constraint("Vertical", 18),
    Sketcher.Constraint("Horizontal", 19),
    Sketcher.Constraint("Equal", 0, 1),
    Sketcher.Constraint("Equal", 1, 2),
    Sketcher.Constraint("Equal", 2, 3),
    Sketcher.Constraint("Symmetric", 0, 3, 2, 3, -1, 1),
    Sketcher.Constraint("Symmetric", 1, 3, 3, 3, -1, 1),
    Sketcher.Constraint("Symmetric", 10, 2, 12, 2, -1, 1),
    Sketcher.Constraint("Symmetric", 8, 2, 14, 2, -1, 1),
    Sketcher.Constraint("Symmetric", 6, 2, 16, 2, -1, 1),
    Sketcher.Constraint("Symmetric", 4, 2, 18, 2, -1, 1),
    Sketcher.Constraint("Symmetric", 1, 3, 2, 3, -2),
    Sketcher.Constraint("Horizontal", 5, 2, 16, 2),
    Sketcher.Constraint("Vertical", 11, 2, 12, 2),
    Sketcher.Constraint("Equal", 15, 4),
    Sketcher.Constraint("Equal", 19, 8),
    Sketcher.Constraint("Diameter", 0, 18.0),
    Sketcher.Constraint("DistanceX", 5, 1, 5, 2, 18.0),
    Sketcher.Constraint("DistanceX", 9, 1, 9, 2, 8.0),
    Sketcher.Constraint("DistanceX", -1, 1, 4, 2, 15.0),
    Sketcher.Constraint("DistanceY", 8, 2, -1, 1, 15.0),
    Sketcher.Constraint("DistanceX", -1, 1, 0, 3, 21.213203),
    Sketcher.Constraint("DistanceY", 0, 3, -1, 1, 21.213203),
])
pocket3 = doc.addObject("PartDesign::Pocket", "Pocket002")
body.addObject(pocket3)
pocket3.Profile = sketch7
pocket3.Length = 6
pocket3.Reversed = True

# Sketch on XZ plane
sketch8 = doc.addObject("Sketcher::SketchObject", "Sketch007")
body.addObject(sketch8)
sketch8.AttachmentSupport = (doc.XZ_Plane, [""])
sketch8.MapMode = "FlatFace"
sketch8.AttachmentOffset = App.Placement(V(0, 0, -6), App.Rotation())
sketch8.addGeometry([
    Part.LineSegment(V(32, -45, 0), V(45, -32, 0)),  # 0
    Part.LineSegment(V(45, -32, 0), V(66, -53, 0)),  # 1
    Part.LineSegment(V(66, -53, 0), V(53, -66, 0)),  # 2
    Part.LineSegment(V(53, -66, 0), V(32, -45, 0)),  # 3
    Part.LineSegment(V(53, 66, 0), V(66, 53, 0)),  # 4
    Part.LineSegment(V(66, 53, 0), V(45, 32, 0)),  # 5
    Part.LineSegment(V(45, 32, 0), V(32, 45, 0)),  # 6
    Part.LineSegment(V(32, 45, 0), V(53, 66, 0)),  # 7
    Part.LineSegment(V(-32, 45, 0), V(-45, 32, 0)),  # 8
    Part.LineSegment(V(-45, 32, 0), V(-66, 53, 0)),  # 9
    Part.LineSegment(V(-66, 53, 0), V(-53, 66, 0)),  # 10
    Part.LineSegment(V(-53, 66, 0), V(-32, 45, 0)),  # 11
    Part.LineSegment(V(-53, -66, 0), V(-66, -53, 0)),  # 12
    Part.LineSegment(V(-66, -53, 0), V(-45, -32, 0)),  # 13
    Part.LineSegment(V(-45, -32, 0), V(-32, -45, 0)),  # 14
    Part.LineSegment(V(-32, -45, 0), V(-53, -66, 0)),  # 15
], False)
sketch8.addConstraint([
    Sketcher.Constraint("Coincident", 0, 2, 1, 1),
    Sketcher.Constraint("Coincident", 1, 2, 2, 1),
    Sketcher.Constraint("Coincident", 2, 2, 3, 1),
    Sketcher.Constraint("Coincident", 3, 2, 0, 1),
    Sketcher.Constraint("Coincident", 4, 2, 5, 1),
    Sketcher.Constraint("Coincident", 5, 2, 6, 1),
    Sketcher.Constraint("Coincident", 6, 2, 7, 1),
    Sketcher.Constraint("Coincident", 7, 2, 4, 1),
    Sketcher.Constraint("Coincident", 8, 2, 9, 1),
    Sketcher.Constraint("Coincident", 9, 2, 10, 1),
    Sketcher.Constraint("Coincident", 10, 2, 11, 1),
    Sketcher.Constraint("Coincident", 11, 2, 8, 1),
    Sketcher.Constraint("Coincident", 12, 2, 13, 1),
    Sketcher.Constraint("Coincident", 13, 2, 14, 1),
    Sketcher.Constraint("Coincident", 14, 2, 15, 1),
    Sketcher.Constraint("Coincident", 15, 2, 12, 1),
    Sketcher.Constraint("Symmetric", 0, 2, 8, 2, -1, 1),
    Sketcher.Constraint("Symmetric", 1, 2, 9, 2, -1, 1),
    Sketcher.Constraint("Symmetric", 2, 2, 10, 2, -1, 1),
    Sketcher.Constraint("Symmetric", 3, 2, 11, 2, -1, 1),
    Sketcher.Constraint("Symmetric", 4, 2, 12, 2, -1, 1),
    Sketcher.Constraint("Symmetric", 5, 2, 13, 2, -1, 1),
    Sketcher.Constraint("Symmetric", 6, 2, 14, 2, -1, 1),
    Sketcher.Constraint("Symmetric", 7, 2, 15, 2, -1, 1),
    Sketcher.Constraint("Symmetric", 5, 2, 8, 2, -2),
    Sketcher.Constraint("Symmetric", 4, 2, 9, 2, -2),
    Sketcher.Constraint("Symmetric", 7, 2, 10, 2, -2),
    Sketcher.Constraint("Symmetric", 6, 2, 11, 2, -2),
    Sketcher.Constraint("Perpendicular", 0, 1),
    Sketcher.Constraint("Perpendicular", 1, 2),
    Sketcher.Constraint("Perpendicular", 2, 3),
    Sketcher.Constraint("Parallel", 3, 4),
    Sketcher.Constraint("Distance", 0, 18.0),
    Sketcher.Constraint("Distance", 1, 30.0),
    Sketcher.Constraint("DistanceX", -1, 1, 1, 2, 65.760931),
    Sketcher.Constraint("DistanceY", 1, 2, -1, 1, 53.033009),
])
pocket4 = doc.addObject("PartDesign::Pocket", "Pocket003")
body.addObject(pocket4)
pocket4.Profile = sketch8
pocket4.Length = 2
pocket4.Reversed = True
doc.recompute()

fillet4 = doc.addObject("PartDesign::Fillet", "Fillet003")
body.addObject(fillet4)
fillet4.Base = (pocket4, edges_at(pocket4, [
    (48.79, 12, -78.489),
    (78.489, 12, -48.79),
    (78.489, 12, 48.79),
    (48.79, 12, 78.489),
    (-48.79, 12, 78.489),
    (-78.489, 12, 48.79),
    (-78.489, 12, -48.79),
    (-48.79, 12, -78.489),
]))
fillet4.Radius = 1

doc.recompute()
